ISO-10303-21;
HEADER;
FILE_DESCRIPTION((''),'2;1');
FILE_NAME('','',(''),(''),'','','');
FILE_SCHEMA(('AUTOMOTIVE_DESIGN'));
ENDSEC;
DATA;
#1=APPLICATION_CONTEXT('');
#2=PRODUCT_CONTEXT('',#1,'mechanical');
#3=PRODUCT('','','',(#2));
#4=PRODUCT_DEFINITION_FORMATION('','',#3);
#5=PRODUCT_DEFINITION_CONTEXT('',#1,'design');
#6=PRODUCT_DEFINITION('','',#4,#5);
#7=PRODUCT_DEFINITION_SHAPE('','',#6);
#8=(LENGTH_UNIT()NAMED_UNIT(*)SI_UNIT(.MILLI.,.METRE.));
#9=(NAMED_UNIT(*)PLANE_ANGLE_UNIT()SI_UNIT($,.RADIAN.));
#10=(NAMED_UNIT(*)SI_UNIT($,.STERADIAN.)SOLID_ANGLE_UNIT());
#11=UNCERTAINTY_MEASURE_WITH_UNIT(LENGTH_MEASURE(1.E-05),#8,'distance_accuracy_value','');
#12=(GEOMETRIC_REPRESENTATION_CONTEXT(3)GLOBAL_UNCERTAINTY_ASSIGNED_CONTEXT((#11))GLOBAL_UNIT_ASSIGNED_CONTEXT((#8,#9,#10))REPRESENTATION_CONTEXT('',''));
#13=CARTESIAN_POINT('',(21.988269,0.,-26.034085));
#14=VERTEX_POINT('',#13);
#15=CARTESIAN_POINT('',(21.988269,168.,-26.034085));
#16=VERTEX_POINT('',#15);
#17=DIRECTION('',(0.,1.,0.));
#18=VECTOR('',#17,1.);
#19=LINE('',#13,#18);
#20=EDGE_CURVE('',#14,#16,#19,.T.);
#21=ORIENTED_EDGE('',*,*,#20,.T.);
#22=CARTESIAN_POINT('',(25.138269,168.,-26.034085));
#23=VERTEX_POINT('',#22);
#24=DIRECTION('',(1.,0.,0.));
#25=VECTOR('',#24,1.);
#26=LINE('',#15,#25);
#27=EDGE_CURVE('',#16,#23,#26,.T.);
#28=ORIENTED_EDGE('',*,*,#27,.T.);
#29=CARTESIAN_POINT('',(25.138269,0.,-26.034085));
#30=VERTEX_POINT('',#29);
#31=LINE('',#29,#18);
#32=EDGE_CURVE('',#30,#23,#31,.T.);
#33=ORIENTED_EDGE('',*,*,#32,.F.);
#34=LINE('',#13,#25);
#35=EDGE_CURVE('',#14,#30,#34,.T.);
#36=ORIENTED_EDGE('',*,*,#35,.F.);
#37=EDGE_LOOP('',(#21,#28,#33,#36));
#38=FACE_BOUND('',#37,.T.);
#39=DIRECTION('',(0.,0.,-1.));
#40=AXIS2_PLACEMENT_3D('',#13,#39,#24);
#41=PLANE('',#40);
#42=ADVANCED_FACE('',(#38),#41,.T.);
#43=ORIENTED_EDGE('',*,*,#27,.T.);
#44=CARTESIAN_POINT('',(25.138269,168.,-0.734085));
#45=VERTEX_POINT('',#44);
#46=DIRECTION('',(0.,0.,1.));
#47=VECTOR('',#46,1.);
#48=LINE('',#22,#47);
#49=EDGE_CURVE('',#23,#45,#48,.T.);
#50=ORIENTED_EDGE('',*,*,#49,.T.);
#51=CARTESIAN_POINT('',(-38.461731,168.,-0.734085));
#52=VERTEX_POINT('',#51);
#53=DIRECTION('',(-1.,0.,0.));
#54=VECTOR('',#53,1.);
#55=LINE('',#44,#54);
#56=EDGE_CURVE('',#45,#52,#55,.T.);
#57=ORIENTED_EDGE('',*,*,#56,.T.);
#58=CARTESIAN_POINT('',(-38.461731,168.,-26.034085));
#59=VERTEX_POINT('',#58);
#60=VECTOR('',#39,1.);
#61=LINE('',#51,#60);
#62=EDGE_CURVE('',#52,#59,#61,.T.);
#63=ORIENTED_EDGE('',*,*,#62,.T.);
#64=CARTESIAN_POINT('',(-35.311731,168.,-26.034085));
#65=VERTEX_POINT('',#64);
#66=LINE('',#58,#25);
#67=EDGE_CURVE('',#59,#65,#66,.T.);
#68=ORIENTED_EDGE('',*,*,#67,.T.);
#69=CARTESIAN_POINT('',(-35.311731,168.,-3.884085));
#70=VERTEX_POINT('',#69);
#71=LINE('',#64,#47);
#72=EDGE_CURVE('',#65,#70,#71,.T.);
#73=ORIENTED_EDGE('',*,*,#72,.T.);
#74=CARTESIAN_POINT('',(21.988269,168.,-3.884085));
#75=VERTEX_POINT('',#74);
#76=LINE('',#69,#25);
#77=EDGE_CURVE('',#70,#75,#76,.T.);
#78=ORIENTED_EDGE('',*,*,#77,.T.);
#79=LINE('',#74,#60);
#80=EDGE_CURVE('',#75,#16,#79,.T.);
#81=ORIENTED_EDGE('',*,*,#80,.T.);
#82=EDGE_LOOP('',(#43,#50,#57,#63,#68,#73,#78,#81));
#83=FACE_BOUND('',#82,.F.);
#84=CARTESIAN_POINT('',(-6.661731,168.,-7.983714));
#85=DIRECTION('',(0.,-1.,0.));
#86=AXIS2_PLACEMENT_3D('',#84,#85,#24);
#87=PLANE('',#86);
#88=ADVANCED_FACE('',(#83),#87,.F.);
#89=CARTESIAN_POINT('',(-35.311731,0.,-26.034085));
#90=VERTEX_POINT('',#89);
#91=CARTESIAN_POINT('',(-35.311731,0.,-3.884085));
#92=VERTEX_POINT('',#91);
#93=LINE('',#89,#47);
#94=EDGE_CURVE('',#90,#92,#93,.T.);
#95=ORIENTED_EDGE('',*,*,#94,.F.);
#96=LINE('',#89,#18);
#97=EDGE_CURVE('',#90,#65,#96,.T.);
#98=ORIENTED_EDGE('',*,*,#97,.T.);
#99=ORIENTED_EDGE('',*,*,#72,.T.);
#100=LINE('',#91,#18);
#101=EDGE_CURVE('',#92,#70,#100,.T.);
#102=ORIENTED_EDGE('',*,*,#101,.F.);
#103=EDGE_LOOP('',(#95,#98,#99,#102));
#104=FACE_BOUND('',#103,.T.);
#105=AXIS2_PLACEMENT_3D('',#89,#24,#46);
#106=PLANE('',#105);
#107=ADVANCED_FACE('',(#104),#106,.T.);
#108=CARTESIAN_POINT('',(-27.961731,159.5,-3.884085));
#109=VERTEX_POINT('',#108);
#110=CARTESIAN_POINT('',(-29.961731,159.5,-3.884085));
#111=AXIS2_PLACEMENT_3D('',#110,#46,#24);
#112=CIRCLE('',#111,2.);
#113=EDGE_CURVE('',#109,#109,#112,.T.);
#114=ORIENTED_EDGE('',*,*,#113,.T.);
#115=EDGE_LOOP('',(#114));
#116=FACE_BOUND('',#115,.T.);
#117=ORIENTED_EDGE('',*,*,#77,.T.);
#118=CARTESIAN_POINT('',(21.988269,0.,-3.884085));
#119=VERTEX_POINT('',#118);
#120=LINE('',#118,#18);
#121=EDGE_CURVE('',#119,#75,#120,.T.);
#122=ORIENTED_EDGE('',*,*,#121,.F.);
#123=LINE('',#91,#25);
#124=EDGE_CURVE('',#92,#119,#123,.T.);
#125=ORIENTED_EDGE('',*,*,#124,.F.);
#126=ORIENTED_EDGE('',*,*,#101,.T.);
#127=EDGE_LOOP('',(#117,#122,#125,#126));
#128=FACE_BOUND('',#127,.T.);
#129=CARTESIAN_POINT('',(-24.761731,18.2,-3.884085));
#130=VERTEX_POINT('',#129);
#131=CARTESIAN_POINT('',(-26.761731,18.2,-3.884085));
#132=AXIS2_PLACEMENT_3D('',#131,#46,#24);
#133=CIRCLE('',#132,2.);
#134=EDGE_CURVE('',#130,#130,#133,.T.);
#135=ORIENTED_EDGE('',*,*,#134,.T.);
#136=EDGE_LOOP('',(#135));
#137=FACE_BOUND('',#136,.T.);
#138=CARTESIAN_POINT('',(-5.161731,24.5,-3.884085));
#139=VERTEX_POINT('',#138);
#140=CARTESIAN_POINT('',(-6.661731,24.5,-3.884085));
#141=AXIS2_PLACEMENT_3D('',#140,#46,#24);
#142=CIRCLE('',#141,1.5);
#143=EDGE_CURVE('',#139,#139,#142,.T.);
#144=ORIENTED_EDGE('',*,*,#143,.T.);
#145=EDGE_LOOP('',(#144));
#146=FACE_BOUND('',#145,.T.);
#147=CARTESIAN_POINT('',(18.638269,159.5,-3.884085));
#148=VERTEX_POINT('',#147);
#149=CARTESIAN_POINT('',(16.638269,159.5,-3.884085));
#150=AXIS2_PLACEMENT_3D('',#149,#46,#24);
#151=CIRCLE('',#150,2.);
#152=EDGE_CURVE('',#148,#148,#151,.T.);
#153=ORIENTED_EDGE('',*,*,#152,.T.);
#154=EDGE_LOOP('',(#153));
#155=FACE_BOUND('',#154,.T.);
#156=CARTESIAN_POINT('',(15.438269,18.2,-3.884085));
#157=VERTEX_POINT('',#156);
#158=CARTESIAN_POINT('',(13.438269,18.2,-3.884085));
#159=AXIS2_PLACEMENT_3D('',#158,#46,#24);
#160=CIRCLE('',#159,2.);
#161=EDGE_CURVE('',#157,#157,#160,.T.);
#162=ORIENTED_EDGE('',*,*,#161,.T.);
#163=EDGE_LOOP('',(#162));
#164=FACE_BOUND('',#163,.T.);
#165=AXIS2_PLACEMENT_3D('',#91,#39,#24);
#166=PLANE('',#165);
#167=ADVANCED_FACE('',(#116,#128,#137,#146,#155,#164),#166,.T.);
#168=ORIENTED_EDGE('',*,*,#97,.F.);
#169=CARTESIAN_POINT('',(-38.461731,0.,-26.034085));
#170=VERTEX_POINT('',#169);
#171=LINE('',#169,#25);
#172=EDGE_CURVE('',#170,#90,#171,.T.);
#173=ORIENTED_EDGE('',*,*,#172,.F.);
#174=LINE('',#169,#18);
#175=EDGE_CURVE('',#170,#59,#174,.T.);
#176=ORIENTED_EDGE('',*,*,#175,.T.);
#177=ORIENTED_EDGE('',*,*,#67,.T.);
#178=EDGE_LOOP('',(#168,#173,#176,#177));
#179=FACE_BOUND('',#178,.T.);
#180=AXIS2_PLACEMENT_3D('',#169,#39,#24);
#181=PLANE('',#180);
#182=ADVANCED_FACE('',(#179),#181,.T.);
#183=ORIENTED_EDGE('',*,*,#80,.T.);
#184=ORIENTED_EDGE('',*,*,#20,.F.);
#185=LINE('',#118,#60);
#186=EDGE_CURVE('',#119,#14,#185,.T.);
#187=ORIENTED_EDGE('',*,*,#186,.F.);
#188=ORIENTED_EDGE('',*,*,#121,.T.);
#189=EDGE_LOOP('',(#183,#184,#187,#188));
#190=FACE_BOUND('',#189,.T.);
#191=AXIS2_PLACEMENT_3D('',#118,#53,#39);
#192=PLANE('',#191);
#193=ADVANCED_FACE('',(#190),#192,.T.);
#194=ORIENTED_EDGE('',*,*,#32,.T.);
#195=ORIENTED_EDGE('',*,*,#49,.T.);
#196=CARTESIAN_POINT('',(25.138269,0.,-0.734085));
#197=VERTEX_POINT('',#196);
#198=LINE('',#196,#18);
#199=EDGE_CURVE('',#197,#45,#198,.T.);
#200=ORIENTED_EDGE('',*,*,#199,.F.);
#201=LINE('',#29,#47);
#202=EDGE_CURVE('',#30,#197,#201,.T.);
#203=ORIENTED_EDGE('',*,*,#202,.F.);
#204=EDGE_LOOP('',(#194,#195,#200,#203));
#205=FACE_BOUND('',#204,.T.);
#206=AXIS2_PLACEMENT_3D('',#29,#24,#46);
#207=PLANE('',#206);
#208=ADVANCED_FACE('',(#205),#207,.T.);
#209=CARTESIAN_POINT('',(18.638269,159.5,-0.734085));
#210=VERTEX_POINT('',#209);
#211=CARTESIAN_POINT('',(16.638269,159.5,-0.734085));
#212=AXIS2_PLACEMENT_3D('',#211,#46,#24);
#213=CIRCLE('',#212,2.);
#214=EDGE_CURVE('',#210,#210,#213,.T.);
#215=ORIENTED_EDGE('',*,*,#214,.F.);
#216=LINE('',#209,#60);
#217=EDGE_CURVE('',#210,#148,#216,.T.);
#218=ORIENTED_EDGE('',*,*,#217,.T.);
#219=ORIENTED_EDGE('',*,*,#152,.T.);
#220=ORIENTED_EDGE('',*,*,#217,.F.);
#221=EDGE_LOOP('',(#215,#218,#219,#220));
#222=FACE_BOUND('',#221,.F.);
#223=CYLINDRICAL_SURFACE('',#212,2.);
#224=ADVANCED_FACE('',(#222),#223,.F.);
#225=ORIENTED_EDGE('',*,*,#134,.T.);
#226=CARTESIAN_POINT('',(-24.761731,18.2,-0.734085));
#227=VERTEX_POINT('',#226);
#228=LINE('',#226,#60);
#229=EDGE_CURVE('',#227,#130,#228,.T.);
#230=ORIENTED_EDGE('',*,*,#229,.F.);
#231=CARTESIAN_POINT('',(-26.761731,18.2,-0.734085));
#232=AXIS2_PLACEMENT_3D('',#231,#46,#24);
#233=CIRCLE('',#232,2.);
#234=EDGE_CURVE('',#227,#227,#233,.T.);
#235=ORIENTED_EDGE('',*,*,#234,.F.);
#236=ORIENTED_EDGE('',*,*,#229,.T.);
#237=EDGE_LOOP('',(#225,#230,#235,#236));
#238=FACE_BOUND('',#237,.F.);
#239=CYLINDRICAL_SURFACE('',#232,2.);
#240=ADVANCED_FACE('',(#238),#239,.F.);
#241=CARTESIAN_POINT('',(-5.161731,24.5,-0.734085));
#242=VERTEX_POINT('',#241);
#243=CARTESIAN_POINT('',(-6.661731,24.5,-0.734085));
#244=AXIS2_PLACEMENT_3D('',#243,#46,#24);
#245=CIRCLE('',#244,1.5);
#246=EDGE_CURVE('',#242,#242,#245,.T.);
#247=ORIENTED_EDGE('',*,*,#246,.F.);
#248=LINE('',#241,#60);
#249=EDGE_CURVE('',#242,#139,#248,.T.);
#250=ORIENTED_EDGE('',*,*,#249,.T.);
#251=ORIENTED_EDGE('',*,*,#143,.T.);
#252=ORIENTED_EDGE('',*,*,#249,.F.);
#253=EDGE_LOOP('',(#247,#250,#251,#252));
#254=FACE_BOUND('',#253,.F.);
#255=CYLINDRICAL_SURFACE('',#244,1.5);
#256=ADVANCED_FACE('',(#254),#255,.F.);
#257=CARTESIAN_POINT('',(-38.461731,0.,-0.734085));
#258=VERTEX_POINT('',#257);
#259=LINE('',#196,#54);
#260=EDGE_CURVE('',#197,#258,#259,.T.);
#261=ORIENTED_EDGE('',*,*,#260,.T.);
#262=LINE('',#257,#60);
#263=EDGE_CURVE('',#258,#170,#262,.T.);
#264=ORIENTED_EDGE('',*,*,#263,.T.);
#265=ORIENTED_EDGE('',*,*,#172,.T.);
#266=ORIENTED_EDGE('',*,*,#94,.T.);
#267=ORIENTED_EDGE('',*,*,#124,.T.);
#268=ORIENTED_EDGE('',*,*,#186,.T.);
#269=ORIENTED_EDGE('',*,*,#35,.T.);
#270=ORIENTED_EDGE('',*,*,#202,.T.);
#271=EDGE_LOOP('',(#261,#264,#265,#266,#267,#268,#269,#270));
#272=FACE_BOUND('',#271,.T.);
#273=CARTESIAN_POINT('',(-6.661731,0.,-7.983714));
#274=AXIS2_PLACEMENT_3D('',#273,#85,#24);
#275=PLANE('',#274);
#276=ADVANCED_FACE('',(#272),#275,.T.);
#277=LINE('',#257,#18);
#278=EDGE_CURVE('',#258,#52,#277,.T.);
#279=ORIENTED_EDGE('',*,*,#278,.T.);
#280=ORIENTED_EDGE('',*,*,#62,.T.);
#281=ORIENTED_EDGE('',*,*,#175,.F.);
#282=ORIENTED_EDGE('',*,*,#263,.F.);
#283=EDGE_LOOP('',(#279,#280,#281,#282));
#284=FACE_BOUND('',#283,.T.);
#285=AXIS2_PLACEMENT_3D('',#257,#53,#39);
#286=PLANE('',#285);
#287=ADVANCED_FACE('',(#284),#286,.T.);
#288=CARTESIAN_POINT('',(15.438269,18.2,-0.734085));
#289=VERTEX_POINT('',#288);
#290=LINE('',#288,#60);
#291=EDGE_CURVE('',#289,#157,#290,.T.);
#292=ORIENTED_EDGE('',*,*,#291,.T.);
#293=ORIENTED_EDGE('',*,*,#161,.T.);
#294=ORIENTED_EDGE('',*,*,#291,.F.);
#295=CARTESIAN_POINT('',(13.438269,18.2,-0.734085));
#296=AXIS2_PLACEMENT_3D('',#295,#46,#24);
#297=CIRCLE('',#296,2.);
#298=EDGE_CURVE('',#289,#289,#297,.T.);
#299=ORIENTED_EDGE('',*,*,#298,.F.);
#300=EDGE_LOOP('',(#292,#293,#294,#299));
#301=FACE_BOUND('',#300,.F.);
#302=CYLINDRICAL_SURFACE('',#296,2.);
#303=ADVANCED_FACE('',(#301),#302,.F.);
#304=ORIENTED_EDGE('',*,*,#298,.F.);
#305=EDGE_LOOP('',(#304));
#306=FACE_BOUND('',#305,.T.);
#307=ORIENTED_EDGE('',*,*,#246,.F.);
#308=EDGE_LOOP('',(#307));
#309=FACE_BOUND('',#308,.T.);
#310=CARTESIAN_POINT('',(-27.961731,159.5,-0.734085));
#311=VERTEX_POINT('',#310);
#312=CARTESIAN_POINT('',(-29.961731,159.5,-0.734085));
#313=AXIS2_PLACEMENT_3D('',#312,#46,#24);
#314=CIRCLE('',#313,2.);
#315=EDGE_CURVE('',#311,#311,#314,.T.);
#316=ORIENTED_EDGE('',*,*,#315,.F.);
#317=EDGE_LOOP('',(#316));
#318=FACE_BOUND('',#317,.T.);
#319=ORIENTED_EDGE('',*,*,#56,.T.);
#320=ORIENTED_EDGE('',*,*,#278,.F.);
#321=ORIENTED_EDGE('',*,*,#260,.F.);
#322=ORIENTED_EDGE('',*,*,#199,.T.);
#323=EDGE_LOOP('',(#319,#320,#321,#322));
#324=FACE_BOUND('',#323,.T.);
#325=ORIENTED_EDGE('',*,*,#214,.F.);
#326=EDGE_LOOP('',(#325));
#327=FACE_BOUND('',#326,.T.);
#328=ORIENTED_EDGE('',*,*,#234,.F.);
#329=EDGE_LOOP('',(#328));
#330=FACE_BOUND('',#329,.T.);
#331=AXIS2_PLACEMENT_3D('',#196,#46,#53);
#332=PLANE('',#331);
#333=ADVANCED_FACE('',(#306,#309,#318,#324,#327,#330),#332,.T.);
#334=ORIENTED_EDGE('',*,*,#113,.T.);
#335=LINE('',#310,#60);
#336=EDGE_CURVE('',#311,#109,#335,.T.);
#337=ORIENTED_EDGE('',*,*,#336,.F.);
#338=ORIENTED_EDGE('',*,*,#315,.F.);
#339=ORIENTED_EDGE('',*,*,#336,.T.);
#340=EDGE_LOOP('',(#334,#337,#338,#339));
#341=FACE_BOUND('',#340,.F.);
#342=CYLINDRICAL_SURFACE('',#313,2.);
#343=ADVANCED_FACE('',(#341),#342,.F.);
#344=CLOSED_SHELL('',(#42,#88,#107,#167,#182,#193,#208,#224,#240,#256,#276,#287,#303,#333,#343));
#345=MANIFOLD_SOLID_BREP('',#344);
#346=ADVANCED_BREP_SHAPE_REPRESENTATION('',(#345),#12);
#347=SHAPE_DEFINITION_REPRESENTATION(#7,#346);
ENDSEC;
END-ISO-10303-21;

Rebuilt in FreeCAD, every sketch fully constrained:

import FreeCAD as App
import Part
import Sketcher
Q = App.Units.Quantity


def add_polygon(sketch, points):
    """Adds a closed chain of lines whose ends are joined by coincident constraints."""
    first, n = sketch.GeometryCount, len(points)
    for a, b in zip(points, points[1:] + points[:1]):
        sketch.addGeometry(Part.LineSegment(App.Vector(*a, 0), App.Vector(*b, 0)), False)
    for i in range(n):
        sketch.addConstraint(Sketcher.Constraint("Coincident", first + i, 2, first + (i + 1) % n, 1))

doc = App.newDocument("Part")
body = doc.addObject("PartDesign::Body", "Body")

sketch1 = doc.addObject("Sketcher::SketchObject", "Sketch")
body.addObject(sketch1)
sketch1.AttachmentSupport = (doc.XZ_Plane, [""])
sketch1.MapMode = "FlatFace"
add_polygon(sketch1, [(-38.5, -0.7), (-38.5, -26), (-35.3, -26), (-35.3, -3.9), (22, -3.9), (22, -26), (25.1, -26), (25.1, -0.7)])
sketch1.addConstraint([
    Sketcher.Constraint("Vertical", 0),
    Sketcher.Constraint("Horizontal", 1),
    Sketcher.Constraint("Vertical", 2),
    Sketcher.Constraint("Horizontal", 3),
    Sketcher.Constraint("Vertical", 4),
    Sketcher.Constraint("Horizontal", 5),
    Sketcher.Constraint("Vertical", 6),
    Sketcher.Constraint("Horizontal", 7),
    Sketcher.Constraint("Horizontal", 1, 2, 4, 2),
    Sketcher.Constraint("Equal", 1, 5),
    Sketcher.Constraint("DistanceX", 3, 1, 3, 2, Q("57.3 mm")),
    Sketcher.Constraint("DistanceX", 7, 2, 7, 1, Q("63.6 mm")),
    Sketcher.Constraint("DistanceY", 0, 2, 0, 1, Q("25.3 mm")),
    Sketcher.Constraint("DistanceY", 2, 1, 2, 2, Q("22.15 mm")),
    Sketcher.Constraint("DistanceX", 0, 2, -1, 1, Q("38.461731 mm")),
    Sketcher.Constraint("DistanceY", 0, 2, -1, 1, Q("26.034085 mm")),
])
pad1 = doc.addObject("PartDesign::Pad", "Pad")
body.addObject(pad1)
pad1.Profile = sketch1
pad1.Length = 168
pad1.Reversed = True

sketch2 = doc.addObject("Sketcher::SketchObject", "Sketch001")
body.addObject(sketch2)
sketch2.AttachmentSupport = (doc.XY_Plane, [""])
sketch2.MapMode = "FlatFace"
sketch2.AttachmentOffset = App.Placement(App.Vector(0, 0, -0.734085), App.Rotation())
sketch2.addGeometry([
    Part.Circle(App.Vector(-30, 159.5, 0), App.Vector(0, 0, 1), 2),
    Part.Circle(App.Vector(16.6, 159.5, 0), App.Vector(0, 0, 1), 2),
    Part.Circle(App.Vector(-6.7, 24.5, 0), App.Vector(0, 0, 1), 1.5),
    Part.Circle(App.Vector(13.4, 18.2, 0), App.Vector(0, 0, 1), 2),
    Part.Circle(App.Vector(-26.8, 18.2, 0), App.Vector(0, 0, 1), 2),
], False)
sketch2.addConstraint([
    Sketcher.Constraint("Equal", 0, 1),
    Sketcher.Constraint("Equal", 1, 3),
    Sketcher.Constraint("Equal", 3, 4),
    Sketcher.Constraint("Horizontal", 0, 3, 1, 3),
    Sketcher.Constraint("Horizontal", 3, 3, 4, 3),
    Sketcher.Constraint("Diameter", 0, Q("4 mm")),
    Sketcher.Constraint("Diameter", 2, Q("3 mm")),
    Sketcher.Constraint("DistanceY", 2, 3, 0, 3, Q("135 mm")),
    Sketcher.Constraint("DistanceY", -1, 1, 0, 3, Q("159.5 mm")),
    Sketcher.Constraint("DistanceY", -1, 1, 3, 3, Q("18.2 mm")),
    Sketcher.Constraint("DistanceX", 0, 3, 1, 3, Q("46.6 mm")),
    Sketcher.Constraint("DistanceX", 0, 3, 2, 3, Q("23.3 mm")),
    Sketcher.Constraint("DistanceX", 2, 3, 3, 3, Q("20.1 mm")),
    Sketcher.Constraint("DistanceX", 4, 3, 2, 3, Q("20.1 mm")),
    Sketcher.Constraint("DistanceX", 0, 3, -1, 1, Q("29.961731 mm")),
])
pocket1 = doc.addObject("PartDesign::Pocket", "Pocket")
body.addObject(pocket1)
pocket1.Profile = sketch2
pocket1.Length = 3.15

doc.recompute()
